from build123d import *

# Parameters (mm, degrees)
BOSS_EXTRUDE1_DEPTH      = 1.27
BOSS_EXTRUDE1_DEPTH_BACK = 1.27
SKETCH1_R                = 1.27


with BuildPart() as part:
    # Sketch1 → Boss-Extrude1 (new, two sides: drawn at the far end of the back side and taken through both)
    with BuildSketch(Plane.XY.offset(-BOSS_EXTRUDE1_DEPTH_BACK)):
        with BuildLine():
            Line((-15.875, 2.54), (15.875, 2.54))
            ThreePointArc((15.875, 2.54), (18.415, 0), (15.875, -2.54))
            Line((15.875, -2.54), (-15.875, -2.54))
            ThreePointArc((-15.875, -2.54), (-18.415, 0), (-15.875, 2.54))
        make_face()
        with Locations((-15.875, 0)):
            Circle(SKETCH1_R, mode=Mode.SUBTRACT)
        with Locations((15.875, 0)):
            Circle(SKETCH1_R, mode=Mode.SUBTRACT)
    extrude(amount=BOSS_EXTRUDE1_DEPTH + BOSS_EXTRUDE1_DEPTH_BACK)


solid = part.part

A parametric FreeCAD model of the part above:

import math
import FreeCAD as App
import Part
import Sketcher

V = App.Vector
Q = App.Units.Quantity

doc = App.newDocument("Part")
body = doc.addObject("PartDesign::Body", "Body")

sketch1 = doc.addObject("Sketcher::SketchObject", "Sketch")
body.addObject(sketch1)
sketch1.AttachmentSupport = (doc.XY_Plane, [""])
sketch1.MapMode = "FlatFace"
sketch1.addGeometry([
    Part.LineSegment(V(15.9, 2.5, 0), V(-15.9, 2.5, 0)),
    Part.ArcOfCircle(Part.Circle(V(-15.9, 0, 0), V(0, 0, 1), 2.5), math.radians(90), math.radians(270)),
    Part.LineSegment(V(-15.9, -2.5, 0), V(15.9, -2.5, 0)),
    Part.ArcOfCircle(Part.Circle(V(15.9, 0, 0), V(0, 0, 1), 2.5), math.radians(-90), math.radians(90)),
    Part.Circle(V(15.9, 0, 0), V(0, 0, 1), 1.3),
    Part.Circle(V(-15.9, 0, 0), V(0, 0, 1), 1.3),
], False)
sketch1.addConstraint([
    Sketcher.Constraint("Tangent", 0, 2, 1, 1),
    Sketcher.Constraint("Tangent", 1, 2, 2, 1),
    Sketcher.Constraint("Tangent", 2, 2, 3, 1),
    Sketcher.Constraint("Tangent", 3, 2, 0, 1),
    Sketcher.Constraint("Horizontal", 0),
    Sketcher.Constraint("Horizontal", 2),
    Sketcher.Constraint("Coincident", 4, 3, 3, 3),
    Sketcher.Constraint("Coincident", 5, 3, 1, 3),
    Sketcher.Constraint("Equal", 4, 5),
    Sketcher.Constraint("Symmetric", 1, 3, 3, 3, -1, 1),
    Sketcher.Constraint("Diameter", 4, Q("0.1 in")),
    Sketcher.Constraint("Radius", 1, Q("0.1 in")),
    Sketcher.Constraint("DistanceX", 0, 2, 0, 1, Q("1.25 in")),
])
pad1 = doc.addObject("PartDesign::Pad", "Pad")
body.addObject(pad1)
pad1.Profile = sketch1
pad1.Type = "TwoLengths"
pad1.Length = Q("0.05 in")
pad1.Length2 = Q("0.05 in")

doc.recompute()
